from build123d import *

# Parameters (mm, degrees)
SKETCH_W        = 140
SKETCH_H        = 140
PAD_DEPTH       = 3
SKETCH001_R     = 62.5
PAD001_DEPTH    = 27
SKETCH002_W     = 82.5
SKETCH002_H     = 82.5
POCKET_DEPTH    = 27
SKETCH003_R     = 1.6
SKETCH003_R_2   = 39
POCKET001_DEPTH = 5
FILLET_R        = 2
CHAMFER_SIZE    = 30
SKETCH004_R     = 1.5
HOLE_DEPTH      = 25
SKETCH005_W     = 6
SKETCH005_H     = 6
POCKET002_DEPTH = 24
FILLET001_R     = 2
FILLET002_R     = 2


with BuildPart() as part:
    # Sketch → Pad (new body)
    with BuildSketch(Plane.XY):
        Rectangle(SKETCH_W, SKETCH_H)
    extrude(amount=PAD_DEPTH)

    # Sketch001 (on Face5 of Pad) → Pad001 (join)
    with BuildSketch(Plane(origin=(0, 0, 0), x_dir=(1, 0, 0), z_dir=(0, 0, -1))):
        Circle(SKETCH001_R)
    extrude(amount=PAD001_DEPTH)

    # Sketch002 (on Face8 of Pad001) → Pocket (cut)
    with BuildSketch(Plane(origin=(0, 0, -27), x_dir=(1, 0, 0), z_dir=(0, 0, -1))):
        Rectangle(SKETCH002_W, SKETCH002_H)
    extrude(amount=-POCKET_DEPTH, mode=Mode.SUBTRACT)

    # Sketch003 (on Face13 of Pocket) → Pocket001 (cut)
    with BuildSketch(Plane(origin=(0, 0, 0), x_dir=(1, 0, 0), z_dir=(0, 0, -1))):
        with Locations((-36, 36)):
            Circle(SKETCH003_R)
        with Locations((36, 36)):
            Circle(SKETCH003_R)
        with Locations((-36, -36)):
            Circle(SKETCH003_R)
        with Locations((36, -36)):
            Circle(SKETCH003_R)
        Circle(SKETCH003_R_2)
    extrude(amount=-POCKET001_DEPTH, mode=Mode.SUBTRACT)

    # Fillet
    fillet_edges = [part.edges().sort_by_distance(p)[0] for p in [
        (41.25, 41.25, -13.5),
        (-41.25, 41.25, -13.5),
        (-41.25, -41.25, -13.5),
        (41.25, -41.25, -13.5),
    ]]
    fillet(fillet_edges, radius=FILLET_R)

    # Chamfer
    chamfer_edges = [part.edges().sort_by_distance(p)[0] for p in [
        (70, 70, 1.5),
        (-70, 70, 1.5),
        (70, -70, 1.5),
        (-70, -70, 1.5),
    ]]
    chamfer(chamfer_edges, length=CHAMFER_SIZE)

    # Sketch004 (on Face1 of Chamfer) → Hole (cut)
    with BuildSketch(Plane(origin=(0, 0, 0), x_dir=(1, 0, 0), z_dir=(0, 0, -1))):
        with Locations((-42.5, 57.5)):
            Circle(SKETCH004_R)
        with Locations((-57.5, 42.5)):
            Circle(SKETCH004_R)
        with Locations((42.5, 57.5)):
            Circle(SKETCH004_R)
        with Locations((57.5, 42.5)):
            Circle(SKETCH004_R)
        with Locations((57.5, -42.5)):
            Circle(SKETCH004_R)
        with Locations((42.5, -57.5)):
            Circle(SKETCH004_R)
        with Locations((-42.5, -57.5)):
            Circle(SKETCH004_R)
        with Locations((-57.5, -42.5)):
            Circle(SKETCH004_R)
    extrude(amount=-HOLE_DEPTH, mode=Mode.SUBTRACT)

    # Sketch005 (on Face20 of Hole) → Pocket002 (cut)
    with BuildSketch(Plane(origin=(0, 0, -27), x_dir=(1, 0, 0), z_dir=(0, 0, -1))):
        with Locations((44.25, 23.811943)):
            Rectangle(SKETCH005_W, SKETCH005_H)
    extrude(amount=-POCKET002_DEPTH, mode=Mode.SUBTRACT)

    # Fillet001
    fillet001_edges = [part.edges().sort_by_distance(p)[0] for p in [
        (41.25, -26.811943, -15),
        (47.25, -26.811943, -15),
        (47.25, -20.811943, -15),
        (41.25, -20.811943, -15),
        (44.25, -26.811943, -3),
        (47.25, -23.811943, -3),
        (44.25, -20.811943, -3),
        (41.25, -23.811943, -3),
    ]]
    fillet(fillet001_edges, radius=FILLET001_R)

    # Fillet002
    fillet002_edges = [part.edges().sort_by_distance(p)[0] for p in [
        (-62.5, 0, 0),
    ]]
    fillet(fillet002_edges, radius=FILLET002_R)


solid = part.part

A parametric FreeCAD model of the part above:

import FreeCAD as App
import Part
import Sketcher
from FreeCAD import Vector
Q = App.Units.Quantity


def edges_at(feature, points):
    """Names of the edges that pass closest to the given points."""
    edges = feature.Shape.Edges
    near = lambda p: min(range(len(edges)), key=lambda i: edges[i].distToShape(Part.Vertex(*p))[0])
    return sorted({f"Edge{near(p) + 1}" for p in points})

doc = App.newDocument("Part")
body = doc.addObject("PartDesign::Body", "Body")

# Sketch on XY plane
sketch1 = body.newObject("Sketcher::SketchObject", "Sketch")
sketch1.AttachmentSupport = (doc.getObject("XY_Plane"), [""])
sketch1.MapMode = "FlatFace"
sketch1.addGeometry(Part.LineSegment(Vector(-70, 70, 0), Vector(-70, -70, 0)), False)
sketch1.addGeometry(Part.LineSegment(Vector(-70, -70, 0), Vector(70, -70, 0)), False)
sketch1.addGeometry(Part.LineSegment(Vector(70, -70, 0), Vector(70, 70, 0)), False)
sketch1.addGeometry(Part.LineSegment(Vector(70, 70, 0), Vector(-70, 70, 0)), False)
sketch1.addConstraint(Sketcher.Constraint("Coincident", 0, 2, 1, 1))
sketch1.addConstraint(Sketcher.Constraint("Coincident", 1, 2, 2, 1))
sketch1.addConstraint(Sketcher.Constraint("Coincident", 2, 2, 3, 1))
sketch1.addConstraint(Sketcher.Constraint("Coincident", 3, 2, 0, 1))
sketch1.addConstraint(Sketcher.Constraint("Vertical", 0))
sketch1.addConstraint(Sketcher.Constraint("Horizontal", 1))
sketch1.addConstraint(Sketcher.Constraint("Vertical", 2))
sketch1.addConstraint(Sketcher.Constraint("Horizontal", 3))
sketch1.addConstraint(Sketcher.Constraint("Symmetric", 0, 2, 2, 2, -1, 1))
sketch1.addConstraint(Sketcher.Constraint("Equal", 3, 0))
sketch1.addConstraint(Sketcher.Constraint("DistanceX", 1, 1, 1, 2, Q("140 mm")))
pad1 = body.newObject("PartDesign::Pad", "Pad")
pad1.Profile = sketch1
pad1.Length = 3

# Sketch on XY plane
sketch2 = body.newObject("Sketcher::SketchObject", "Sketch001")
sketch2.AttachmentSupport = (doc.getObject("XY_Plane"), [""])
sketch2.MapMode = "FlatFace"
sketch2.addGeometry(Part.Circle(Vector(0, 0, 0), Vector(0, 0, 1), 62), False)
sketch2.addConstraint(Sketcher.Constraint("Coincident", 0, 3, -1, 1))
sketch2.addConstraint(Sketcher.Constraint("Diameter", 0, Q("125 mm")))
pad2 = body.newObject("PartDesign::Pad", "Pad001")
pad2.Profile = sketch2
pad2.Length = 27
pad2.Reversed = True

# Sketch on XY plane
sketch3 = body.newObject("Sketcher::SketchObject", "Sketch002")
sketch3.AttachmentSupport = (doc.getObject("XY_Plane"), [""])
sketch3.MapMode = "FlatFace"
sketch3.AttachmentOffset = App.Placement(Vector(0, 0, -27), App.Rotation())
sketch3.addGeometry(Part.LineSegment(Vector(-41, -41, 0), Vector(-41, 41, 0)), False)
sketch3.addGeometry(Part.LineSegment(Vector(-41, 41, 0), Vector(41, 41, 0)), False)
sketch3.addGeometry(Part.LineSegment(Vector(41, 41, 0), Vector(41, -41, 0)), False)
sketch3.addGeometry(Part.LineSegment(Vector(41, -41, 0), Vector(-41, -41, 0)), False)
sketch3.addConstraint(Sketcher.Constraint("Coincident", 0, 2, 1, 1))
sketch3.addConstraint(Sketcher.Constraint("Coincident", 1, 2, 2, 1))
sketch3.addConstraint(Sketcher.Constraint("Coincident", 2, 2, 3, 1))
sketch3.addConstraint(Sketcher.Constraint("Coincident", 3, 2, 0, 1))
sketch3.addConstraint(Sketcher.Constraint("Vertical", 0))
sketch3.addConstraint(Sketcher.Constraint("Horizontal", 1))
sketch3.addConstraint(Sketcher.Constraint("Vertical", 2))
sketch3.addConstraint(Sketcher.Constraint("Horizontal", 3))
sketch3.addConstraint(Sketcher.Constraint("Symmetric", 0, 2, 2, 2, -1, 1))
sketch3.addConstraint(Sketcher.Constraint("Equal", 3, 0))
sketch3.addConstraint(Sketcher.Constraint("DistanceX", 1, 1, 1, 2, Q("82.5 mm")))
pocket1 = body.newObject("PartDesign::Pocket", "Pocket")
pocket1.Profile = sketch3
pocket1.Length = 27
pocket1.Reversed = True

# Sketch on XY plane
sketch4 = body.newObject("Sketcher::SketchObject", "Sketch003")
sketch4.AttachmentSupport = (doc.getObject("XY_Plane"), [""])
sketch4.MapMode = "FlatFace"
sketch4.addGeometry(Part.Circle(Vector(-36, -36, 0), Vector(0, 0, 1), 1.6), False)
sketch4.addGeometry(Part.Circle(Vector(36, -36, 0), Vector(0, 0, 1), 1.6), False)
sketch4.addGeometry(Part.Circle(Vector(-36, 36, 0), Vector(0, 0, 1), 1.6), False)
sketch4.addGeometry(Part.Circle(Vector(36, 36, 0), Vector(0, 0, 1), 1.6), False)
sketch4.addGeometry(Part.Circle(Vector(0, 0, 0), Vector(0, 0, 1), 39), False)
sketch4.addConstraint(Sketcher.Constraint("Coincident", 4, 3, -1, 1))
sketch4.addConstraint(Sketcher.Constraint("Equal", 0, 1))
sketch4.addConstraint(Sketcher.Constraint("Equal", 1, 2))
sketch4.addConstraint(Sketcher.Constraint("Equal", 2, 3))
sketch4.addConstraint(Sketcher.Constraint("Symmetric", 1, 3, 2, 3, -1, 1))
sketch4.addConstraint(Sketcher.Constraint("Symmetric", 0, 3, 3, 3, -1, 1))
sketch4.addConstraint(Sketcher.Constraint("Symmetric", 0, 3, 1, 3, -2))
sketch4.addConstraint(Sketcher.Constraint("Diameter", 4, Q("78 mm")))
sketch4.addConstraint(Sketcher.Constraint("Diameter", 0, Q("3.2 mm")))
sketch4.addConstraint(Sketcher.Constraint("DistanceX", 0, 3, -1, 1, Q("36 mm")))
sketch4.addConstraint(Sketcher.Constraint("DistanceY", 0, 3, -1, 1, Q("36 mm")))
pocket2 = body.newObject("PartDesign::Pocket", "Pocket001")
pocket2.Profile = sketch4
pocket2.Length = 5
pocket2.Reversed = True
doc.recompute()

fillet = body.newObject("PartDesign::Fillet", "Fillet")
fillet.Base = (pocket2, edges_at(pocket2, [
    (41.25, 41.25, -13.5),
    (-41.25, 41.25, -13.5),
    (-41.25, -41.25, -13.5),
    (41.25, -41.25, -13.5),
]))
fillet.Radius = 2
doc.recompute()

chamfer = body.newObject("PartDesign::Chamfer", "Chamfer")
chamfer.Base = (fillet, edges_at(fillet, [
    (70, 70, 1.5),
    (-70, 70, 1.5),
    (70, -70, 1.5),
    (-70, -70, 1.5),
]))
chamfer.Size = 30

# Sketch on XY plane
sketch5 = body.newObject("Sketcher::SketchObject", "Sketch004")
sketch5.AttachmentSupport = (doc.getObject("XY_Plane"), [""])
sketch5.MapMode = "FlatFace"
sketch5.addGeometry(Part.Circle(Vector(-42.5, -57.5, 0), Vector(0, 0, 1), 1.5), False)
sketch5.addGeometry(Part.Circle(Vector(-57.5, -42.5, 0), Vector(0, 0, 1), 1.5), False)
sketch5.addGeometry(Part.Circle(Vector(42.5, -57.5, 0), Vector(0, 0, 1), 1.5), False)
sketch5.addGeometry(Part.Circle(Vector(57.5, -42.5, 0), Vector(0, 0, 1), 1.5), False)
sketch5.addGeometry(Part.Circle(Vector(57.5, 42.5, 0), Vector(0, 0, 1), 1.5), False)
sketch5.addGeometry(Part.Circle(Vector(42.5, 57.5, 0), Vector(0, 0, 1), 1.5), False)
sketch5.addGeometry(Part.Circle(Vector(-42.5, 57.5, 0), Vector(0, 0, 1), 1.5), False)
sketch5.addGeometry(Part.Circle(Vector(-57.5, 42.5, 0), Vector(0, 0, 1), 1.5), False)
sketch5.addConstraint(Sketcher.Constraint("Equal", 0, 1))
sketch5.addConstraint(Sketcher.Constraint("Equal", 1, 2))
sketch5.addConstraint(Sketcher.Constraint("Equal", 2, 3))
sketch5.addConstraint(Sketcher.Constraint("Equal", 3, 4))
sketch5.addConstraint(Sketcher.Constraint("Equal", 4, 5))
sketch5.addConstraint(Sketcher.Constraint("Equal", 5, 6))
sketch5.addConstraint(Sketcher.Constraint("Equal", 6, 7))
sketch5.addConstraint(Sketcher.Constraint("Symmetric", 1, 3, 4, 3, -1, 1))
sketch5.addConstraint(Sketcher.Constraint("Symmetric", 0, 3, 5, 3, -1, 1))
sketch5.addConstraint(Sketcher.Constraint("Symmetric", 2, 3, 6, 3, -1, 1))
sketch5.addConstraint(Sketcher.Constraint("Symmetric", 3, 3, 7, 3, -1, 1))
sketch5.addConstraint(Sketcher.Constraint("Symmetric", 0, 3, 2, 3, -2))
sketch5.addConstraint(Sketcher.Constraint("Symmetric", 1, 3, 3, 3, -2))
sketch5.addConstraint(Sketcher.Constraint("Diameter", 0, Q("3 mm")))
sketch5.addConstraint(Sketcher.Constraint("DistanceX", 1, 3, 0, 3, Q("15 mm")))
sketch5.addConstraint(Sketcher.Constraint("DistanceY", 0, 3, 1, 3, Q("15 mm")))
sketch5.addConstraint(Sketcher.Constraint("DistanceX", 0, 3, 2, 3, Q("85 mm")))
sketch5.addConstraint(Sketcher.Constraint("DistanceY", 3, 3, 4, 3, Q("85 mm")))
pocket3 = body.newObject("PartDesign::Pocket", "Pocket002")
pocket3.Profile = sketch5
pocket3.Length = 25
pocket3.Reversed = True

# Sketch on XY plane
sketch6 = body.newObject("Sketcher::SketchObject", "Sketch005")
sketch6.AttachmentSupport = (doc.getObject("XY_Plane"), [""])
sketch6.MapMode = "FlatFace"
sketch6.AttachmentOffset = App.Placement(Vector(0, 0, -27), App.Rotation())
sketch6.addGeometry(Part.LineSegment(Vector(41, -27, 0), Vector(41, -21, 0)), False)
sketch6.addGeometry(Part.LineSegment(Vector(41, -21, 0), Vector(47, -21, 0)), False)
sketch6.addGeometry(Part.LineSegment(Vector(47, -21, 0), Vector(47, -27, 0)), False)
sketch6.addGeometry(Part.LineSegment(Vector(47, -27, 0), Vector(41, -27, 0)), False)
sketch6.addConstraint(Sketcher.Constraint("Coincident", 0, 2, 1, 1))
sketch6.addConstraint(Sketcher.Constraint("Coincident", 1, 2, 2, 1))
sketch6.addConstraint(Sketcher.Constraint("Coincident", 2, 2, 3, 1))
sketch6.addConstraint(Sketcher.Constraint("Coincident", 3, 2, 0, 1))
sketch6.addConstraint(Sketcher.Constraint("Vertical", 0))
sketch6.addConstraint(Sketcher.Constraint("Horizontal", 1))
sketch6.addConstraint(Sketcher.Constraint("Vertical", 2))
sketch6.addConstraint(Sketcher.Constraint("Horizontal", 3))
sketch6.addConstraint(Sketcher.Constraint("Equal", 3, 0))
sketch6.addConstraint(Sketcher.Constraint("DistanceX", 1, 1, 1, 2, Q("6 mm")))
sketch6.addConstraint(Sketcher.Constraint("DistanceX", -1, 1, 0, 2, Q("41.25 mm")))
sketch6.addConstraint(Sketcher.Constraint("DistanceY", 0, 2, -1, 1, Q("20.811943 mm")))
pocket4 = body.newObject("PartDesign::Pocket", "Pocket003")
pocket4.Profile = sketch6
pocket4.Length = 24
pocket4.Reversed = True
doc.recompute()

fillet2 = body.newObject("PartDesign::Fillet", "Fillet001")
fillet2.Base = (pocket4, edges_at(pocket4, [
    (41.25, -26.812, -15),
    (47.25, -26.812, -15),
    (47.25, -20.812, -15),
    (41.25, -20.812, -15),
    (44.25, -26.812, -3),
    (47.25, -23.812, -3),
    (44.25, -20.812, -3),
    (41.25, -23.812, -3),
]))
fillet2.Radius = 2
doc.recompute()

fillet3 = body.newObject("PartDesign::Fillet", "Fillet002")
fillet3.Base = (fillet2, edges_at(fillet2, [(-62.5, 0, 0)]))
fillet3.Radius = 2

doc.recompute()
